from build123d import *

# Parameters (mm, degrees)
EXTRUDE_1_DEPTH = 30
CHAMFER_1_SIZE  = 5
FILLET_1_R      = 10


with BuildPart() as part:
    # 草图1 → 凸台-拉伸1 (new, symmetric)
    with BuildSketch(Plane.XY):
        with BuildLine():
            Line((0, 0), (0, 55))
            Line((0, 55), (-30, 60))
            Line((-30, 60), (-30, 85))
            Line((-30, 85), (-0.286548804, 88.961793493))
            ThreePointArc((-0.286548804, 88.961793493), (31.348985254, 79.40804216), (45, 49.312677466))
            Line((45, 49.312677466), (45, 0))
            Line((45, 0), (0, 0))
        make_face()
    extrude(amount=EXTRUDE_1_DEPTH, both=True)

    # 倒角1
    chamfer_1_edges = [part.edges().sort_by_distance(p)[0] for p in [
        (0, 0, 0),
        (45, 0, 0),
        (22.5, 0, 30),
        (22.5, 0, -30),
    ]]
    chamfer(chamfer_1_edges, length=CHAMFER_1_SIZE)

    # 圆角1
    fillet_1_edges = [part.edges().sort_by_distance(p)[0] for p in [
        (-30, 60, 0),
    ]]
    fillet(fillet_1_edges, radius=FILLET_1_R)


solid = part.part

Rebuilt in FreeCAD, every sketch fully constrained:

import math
import FreeCAD as App
import Part
import Sketcher

V = App.Vector


def edges_at(feature, points):
    """Names of the edges that pass closest to the given points."""
    edges = feature.Shape.Edges
    near = lambda p: min(range(len(edges)), key=lambda i: edges[i].distToShape(Part.Vertex(*p))[0])
    return sorted({f"Edge{near(p) + 1}" for p in points})

doc = App.newDocument("Part")
body = doc.addObject("PartDesign::Body", "Body")

# Sketch on XY plane
sketch1 = doc.addObject("Sketcher::SketchObject", "Sketch")
body.addObject(sketch1)
sketch1.AttachmentSupport = (doc.XY_Plane, [""])
sketch1.MapMode = "FlatFace"
sketch1.addGeometry([
    Part.LineSegment(V(0, 55, 0), V(0, 0, 0)),  # 0
    Part.LineSegment(V(0, 0, 0), V(45, 0, 0)),  # 1
    Part.LineSegment(V(45, 0, 0), V(45, 49.312677, 0)),  # 2
    Part.ArcOfCircle(Part.Circle(V(5, 49.312677, 0), V(0, 0, 1), 40), math.radians(0), math.radians(97.594643)),  # 3
    Part.LineSegment(V(-0.286549, 88.961793, 0), V(-30, 85, 0)),  # 4
    Part.LineSegment(V(-30, 85, 0), V(-30, 60, 0)),  # 5
    Part.LineSegment(V(-30, 60, 0), V(0, 55, 0)),  # 6
], False)
sketch1.addConstraint([
    Sketcher.Constraint("Coincident", 0, 2, 1, 1),
    Sketcher.Constraint("Coincident", 1, 2, 2, 1),
    Sketcher.Constraint("Tangent", 2, 2, 3, 1),
    Sketcher.Constraint("Tangent", 3, 2, 4, 1),
    Sketcher.Constraint("Coincident", 4, 2, 5, 1),
    Sketcher.Constraint("Coincident", 5, 2, 6, 1),
    Sketcher.Constraint("Coincident", 6, 2, 0, 1),
    Sketcher.Constraint("Vertical", 0),
    Sketcher.Constraint("Horizontal", 1),
    Sketcher.Constraint("Vertical", 2),
    Sketcher.Constraint("Vertical", 5),
    Sketcher.Constraint("Coincident", 0, 2, -1, 1),
    Sketcher.Constraint("Radius", 3, 40.0),
    Sketcher.Constraint("DistanceX", 1, 1, 1, 2, 45.0),
    Sketcher.Constraint("DistanceY", 0, 2, 0, 1, 55.0),
    Sketcher.Constraint("DistanceY", 5, 2, 5, 1, 25.0),
    Sketcher.Constraint("DistanceX", 4, 2, -1, 1, 30.0),
    Sketcher.Constraint("DistanceY", -1, 1, 4, 2, 85.0),
    Sketcher.Constraint("DistanceY", 2, 1, 2, 2, 49.312677),
])
pad1 = doc.addObject("PartDesign::Pad", "Pad")
body.addObject(pad1)
pad1.Profile = sketch1
pad1.Length = 60
pad1.Midplane = True
doc.recompute()

chamfer = doc.addObject("PartDesign::Chamfer", "Chamfer")
body.addObject(chamfer)
chamfer.Base = (pad1, edges_at(pad1, [
    (0, 0, 0),
    (45, 0, 0),
    (22.5, 0, 30),
    (22.5, 0, -30),
]))
chamfer.Size = 5
doc.recompute()

fillet = doc.addObject("PartDesign::Fillet", "Fillet")
body.addObject(fillet)
fillet.Base = (chamfer, edges_at(chamfer, [(-30, 60, 0)]))
fillet.Radius = 10

doc.recompute()
